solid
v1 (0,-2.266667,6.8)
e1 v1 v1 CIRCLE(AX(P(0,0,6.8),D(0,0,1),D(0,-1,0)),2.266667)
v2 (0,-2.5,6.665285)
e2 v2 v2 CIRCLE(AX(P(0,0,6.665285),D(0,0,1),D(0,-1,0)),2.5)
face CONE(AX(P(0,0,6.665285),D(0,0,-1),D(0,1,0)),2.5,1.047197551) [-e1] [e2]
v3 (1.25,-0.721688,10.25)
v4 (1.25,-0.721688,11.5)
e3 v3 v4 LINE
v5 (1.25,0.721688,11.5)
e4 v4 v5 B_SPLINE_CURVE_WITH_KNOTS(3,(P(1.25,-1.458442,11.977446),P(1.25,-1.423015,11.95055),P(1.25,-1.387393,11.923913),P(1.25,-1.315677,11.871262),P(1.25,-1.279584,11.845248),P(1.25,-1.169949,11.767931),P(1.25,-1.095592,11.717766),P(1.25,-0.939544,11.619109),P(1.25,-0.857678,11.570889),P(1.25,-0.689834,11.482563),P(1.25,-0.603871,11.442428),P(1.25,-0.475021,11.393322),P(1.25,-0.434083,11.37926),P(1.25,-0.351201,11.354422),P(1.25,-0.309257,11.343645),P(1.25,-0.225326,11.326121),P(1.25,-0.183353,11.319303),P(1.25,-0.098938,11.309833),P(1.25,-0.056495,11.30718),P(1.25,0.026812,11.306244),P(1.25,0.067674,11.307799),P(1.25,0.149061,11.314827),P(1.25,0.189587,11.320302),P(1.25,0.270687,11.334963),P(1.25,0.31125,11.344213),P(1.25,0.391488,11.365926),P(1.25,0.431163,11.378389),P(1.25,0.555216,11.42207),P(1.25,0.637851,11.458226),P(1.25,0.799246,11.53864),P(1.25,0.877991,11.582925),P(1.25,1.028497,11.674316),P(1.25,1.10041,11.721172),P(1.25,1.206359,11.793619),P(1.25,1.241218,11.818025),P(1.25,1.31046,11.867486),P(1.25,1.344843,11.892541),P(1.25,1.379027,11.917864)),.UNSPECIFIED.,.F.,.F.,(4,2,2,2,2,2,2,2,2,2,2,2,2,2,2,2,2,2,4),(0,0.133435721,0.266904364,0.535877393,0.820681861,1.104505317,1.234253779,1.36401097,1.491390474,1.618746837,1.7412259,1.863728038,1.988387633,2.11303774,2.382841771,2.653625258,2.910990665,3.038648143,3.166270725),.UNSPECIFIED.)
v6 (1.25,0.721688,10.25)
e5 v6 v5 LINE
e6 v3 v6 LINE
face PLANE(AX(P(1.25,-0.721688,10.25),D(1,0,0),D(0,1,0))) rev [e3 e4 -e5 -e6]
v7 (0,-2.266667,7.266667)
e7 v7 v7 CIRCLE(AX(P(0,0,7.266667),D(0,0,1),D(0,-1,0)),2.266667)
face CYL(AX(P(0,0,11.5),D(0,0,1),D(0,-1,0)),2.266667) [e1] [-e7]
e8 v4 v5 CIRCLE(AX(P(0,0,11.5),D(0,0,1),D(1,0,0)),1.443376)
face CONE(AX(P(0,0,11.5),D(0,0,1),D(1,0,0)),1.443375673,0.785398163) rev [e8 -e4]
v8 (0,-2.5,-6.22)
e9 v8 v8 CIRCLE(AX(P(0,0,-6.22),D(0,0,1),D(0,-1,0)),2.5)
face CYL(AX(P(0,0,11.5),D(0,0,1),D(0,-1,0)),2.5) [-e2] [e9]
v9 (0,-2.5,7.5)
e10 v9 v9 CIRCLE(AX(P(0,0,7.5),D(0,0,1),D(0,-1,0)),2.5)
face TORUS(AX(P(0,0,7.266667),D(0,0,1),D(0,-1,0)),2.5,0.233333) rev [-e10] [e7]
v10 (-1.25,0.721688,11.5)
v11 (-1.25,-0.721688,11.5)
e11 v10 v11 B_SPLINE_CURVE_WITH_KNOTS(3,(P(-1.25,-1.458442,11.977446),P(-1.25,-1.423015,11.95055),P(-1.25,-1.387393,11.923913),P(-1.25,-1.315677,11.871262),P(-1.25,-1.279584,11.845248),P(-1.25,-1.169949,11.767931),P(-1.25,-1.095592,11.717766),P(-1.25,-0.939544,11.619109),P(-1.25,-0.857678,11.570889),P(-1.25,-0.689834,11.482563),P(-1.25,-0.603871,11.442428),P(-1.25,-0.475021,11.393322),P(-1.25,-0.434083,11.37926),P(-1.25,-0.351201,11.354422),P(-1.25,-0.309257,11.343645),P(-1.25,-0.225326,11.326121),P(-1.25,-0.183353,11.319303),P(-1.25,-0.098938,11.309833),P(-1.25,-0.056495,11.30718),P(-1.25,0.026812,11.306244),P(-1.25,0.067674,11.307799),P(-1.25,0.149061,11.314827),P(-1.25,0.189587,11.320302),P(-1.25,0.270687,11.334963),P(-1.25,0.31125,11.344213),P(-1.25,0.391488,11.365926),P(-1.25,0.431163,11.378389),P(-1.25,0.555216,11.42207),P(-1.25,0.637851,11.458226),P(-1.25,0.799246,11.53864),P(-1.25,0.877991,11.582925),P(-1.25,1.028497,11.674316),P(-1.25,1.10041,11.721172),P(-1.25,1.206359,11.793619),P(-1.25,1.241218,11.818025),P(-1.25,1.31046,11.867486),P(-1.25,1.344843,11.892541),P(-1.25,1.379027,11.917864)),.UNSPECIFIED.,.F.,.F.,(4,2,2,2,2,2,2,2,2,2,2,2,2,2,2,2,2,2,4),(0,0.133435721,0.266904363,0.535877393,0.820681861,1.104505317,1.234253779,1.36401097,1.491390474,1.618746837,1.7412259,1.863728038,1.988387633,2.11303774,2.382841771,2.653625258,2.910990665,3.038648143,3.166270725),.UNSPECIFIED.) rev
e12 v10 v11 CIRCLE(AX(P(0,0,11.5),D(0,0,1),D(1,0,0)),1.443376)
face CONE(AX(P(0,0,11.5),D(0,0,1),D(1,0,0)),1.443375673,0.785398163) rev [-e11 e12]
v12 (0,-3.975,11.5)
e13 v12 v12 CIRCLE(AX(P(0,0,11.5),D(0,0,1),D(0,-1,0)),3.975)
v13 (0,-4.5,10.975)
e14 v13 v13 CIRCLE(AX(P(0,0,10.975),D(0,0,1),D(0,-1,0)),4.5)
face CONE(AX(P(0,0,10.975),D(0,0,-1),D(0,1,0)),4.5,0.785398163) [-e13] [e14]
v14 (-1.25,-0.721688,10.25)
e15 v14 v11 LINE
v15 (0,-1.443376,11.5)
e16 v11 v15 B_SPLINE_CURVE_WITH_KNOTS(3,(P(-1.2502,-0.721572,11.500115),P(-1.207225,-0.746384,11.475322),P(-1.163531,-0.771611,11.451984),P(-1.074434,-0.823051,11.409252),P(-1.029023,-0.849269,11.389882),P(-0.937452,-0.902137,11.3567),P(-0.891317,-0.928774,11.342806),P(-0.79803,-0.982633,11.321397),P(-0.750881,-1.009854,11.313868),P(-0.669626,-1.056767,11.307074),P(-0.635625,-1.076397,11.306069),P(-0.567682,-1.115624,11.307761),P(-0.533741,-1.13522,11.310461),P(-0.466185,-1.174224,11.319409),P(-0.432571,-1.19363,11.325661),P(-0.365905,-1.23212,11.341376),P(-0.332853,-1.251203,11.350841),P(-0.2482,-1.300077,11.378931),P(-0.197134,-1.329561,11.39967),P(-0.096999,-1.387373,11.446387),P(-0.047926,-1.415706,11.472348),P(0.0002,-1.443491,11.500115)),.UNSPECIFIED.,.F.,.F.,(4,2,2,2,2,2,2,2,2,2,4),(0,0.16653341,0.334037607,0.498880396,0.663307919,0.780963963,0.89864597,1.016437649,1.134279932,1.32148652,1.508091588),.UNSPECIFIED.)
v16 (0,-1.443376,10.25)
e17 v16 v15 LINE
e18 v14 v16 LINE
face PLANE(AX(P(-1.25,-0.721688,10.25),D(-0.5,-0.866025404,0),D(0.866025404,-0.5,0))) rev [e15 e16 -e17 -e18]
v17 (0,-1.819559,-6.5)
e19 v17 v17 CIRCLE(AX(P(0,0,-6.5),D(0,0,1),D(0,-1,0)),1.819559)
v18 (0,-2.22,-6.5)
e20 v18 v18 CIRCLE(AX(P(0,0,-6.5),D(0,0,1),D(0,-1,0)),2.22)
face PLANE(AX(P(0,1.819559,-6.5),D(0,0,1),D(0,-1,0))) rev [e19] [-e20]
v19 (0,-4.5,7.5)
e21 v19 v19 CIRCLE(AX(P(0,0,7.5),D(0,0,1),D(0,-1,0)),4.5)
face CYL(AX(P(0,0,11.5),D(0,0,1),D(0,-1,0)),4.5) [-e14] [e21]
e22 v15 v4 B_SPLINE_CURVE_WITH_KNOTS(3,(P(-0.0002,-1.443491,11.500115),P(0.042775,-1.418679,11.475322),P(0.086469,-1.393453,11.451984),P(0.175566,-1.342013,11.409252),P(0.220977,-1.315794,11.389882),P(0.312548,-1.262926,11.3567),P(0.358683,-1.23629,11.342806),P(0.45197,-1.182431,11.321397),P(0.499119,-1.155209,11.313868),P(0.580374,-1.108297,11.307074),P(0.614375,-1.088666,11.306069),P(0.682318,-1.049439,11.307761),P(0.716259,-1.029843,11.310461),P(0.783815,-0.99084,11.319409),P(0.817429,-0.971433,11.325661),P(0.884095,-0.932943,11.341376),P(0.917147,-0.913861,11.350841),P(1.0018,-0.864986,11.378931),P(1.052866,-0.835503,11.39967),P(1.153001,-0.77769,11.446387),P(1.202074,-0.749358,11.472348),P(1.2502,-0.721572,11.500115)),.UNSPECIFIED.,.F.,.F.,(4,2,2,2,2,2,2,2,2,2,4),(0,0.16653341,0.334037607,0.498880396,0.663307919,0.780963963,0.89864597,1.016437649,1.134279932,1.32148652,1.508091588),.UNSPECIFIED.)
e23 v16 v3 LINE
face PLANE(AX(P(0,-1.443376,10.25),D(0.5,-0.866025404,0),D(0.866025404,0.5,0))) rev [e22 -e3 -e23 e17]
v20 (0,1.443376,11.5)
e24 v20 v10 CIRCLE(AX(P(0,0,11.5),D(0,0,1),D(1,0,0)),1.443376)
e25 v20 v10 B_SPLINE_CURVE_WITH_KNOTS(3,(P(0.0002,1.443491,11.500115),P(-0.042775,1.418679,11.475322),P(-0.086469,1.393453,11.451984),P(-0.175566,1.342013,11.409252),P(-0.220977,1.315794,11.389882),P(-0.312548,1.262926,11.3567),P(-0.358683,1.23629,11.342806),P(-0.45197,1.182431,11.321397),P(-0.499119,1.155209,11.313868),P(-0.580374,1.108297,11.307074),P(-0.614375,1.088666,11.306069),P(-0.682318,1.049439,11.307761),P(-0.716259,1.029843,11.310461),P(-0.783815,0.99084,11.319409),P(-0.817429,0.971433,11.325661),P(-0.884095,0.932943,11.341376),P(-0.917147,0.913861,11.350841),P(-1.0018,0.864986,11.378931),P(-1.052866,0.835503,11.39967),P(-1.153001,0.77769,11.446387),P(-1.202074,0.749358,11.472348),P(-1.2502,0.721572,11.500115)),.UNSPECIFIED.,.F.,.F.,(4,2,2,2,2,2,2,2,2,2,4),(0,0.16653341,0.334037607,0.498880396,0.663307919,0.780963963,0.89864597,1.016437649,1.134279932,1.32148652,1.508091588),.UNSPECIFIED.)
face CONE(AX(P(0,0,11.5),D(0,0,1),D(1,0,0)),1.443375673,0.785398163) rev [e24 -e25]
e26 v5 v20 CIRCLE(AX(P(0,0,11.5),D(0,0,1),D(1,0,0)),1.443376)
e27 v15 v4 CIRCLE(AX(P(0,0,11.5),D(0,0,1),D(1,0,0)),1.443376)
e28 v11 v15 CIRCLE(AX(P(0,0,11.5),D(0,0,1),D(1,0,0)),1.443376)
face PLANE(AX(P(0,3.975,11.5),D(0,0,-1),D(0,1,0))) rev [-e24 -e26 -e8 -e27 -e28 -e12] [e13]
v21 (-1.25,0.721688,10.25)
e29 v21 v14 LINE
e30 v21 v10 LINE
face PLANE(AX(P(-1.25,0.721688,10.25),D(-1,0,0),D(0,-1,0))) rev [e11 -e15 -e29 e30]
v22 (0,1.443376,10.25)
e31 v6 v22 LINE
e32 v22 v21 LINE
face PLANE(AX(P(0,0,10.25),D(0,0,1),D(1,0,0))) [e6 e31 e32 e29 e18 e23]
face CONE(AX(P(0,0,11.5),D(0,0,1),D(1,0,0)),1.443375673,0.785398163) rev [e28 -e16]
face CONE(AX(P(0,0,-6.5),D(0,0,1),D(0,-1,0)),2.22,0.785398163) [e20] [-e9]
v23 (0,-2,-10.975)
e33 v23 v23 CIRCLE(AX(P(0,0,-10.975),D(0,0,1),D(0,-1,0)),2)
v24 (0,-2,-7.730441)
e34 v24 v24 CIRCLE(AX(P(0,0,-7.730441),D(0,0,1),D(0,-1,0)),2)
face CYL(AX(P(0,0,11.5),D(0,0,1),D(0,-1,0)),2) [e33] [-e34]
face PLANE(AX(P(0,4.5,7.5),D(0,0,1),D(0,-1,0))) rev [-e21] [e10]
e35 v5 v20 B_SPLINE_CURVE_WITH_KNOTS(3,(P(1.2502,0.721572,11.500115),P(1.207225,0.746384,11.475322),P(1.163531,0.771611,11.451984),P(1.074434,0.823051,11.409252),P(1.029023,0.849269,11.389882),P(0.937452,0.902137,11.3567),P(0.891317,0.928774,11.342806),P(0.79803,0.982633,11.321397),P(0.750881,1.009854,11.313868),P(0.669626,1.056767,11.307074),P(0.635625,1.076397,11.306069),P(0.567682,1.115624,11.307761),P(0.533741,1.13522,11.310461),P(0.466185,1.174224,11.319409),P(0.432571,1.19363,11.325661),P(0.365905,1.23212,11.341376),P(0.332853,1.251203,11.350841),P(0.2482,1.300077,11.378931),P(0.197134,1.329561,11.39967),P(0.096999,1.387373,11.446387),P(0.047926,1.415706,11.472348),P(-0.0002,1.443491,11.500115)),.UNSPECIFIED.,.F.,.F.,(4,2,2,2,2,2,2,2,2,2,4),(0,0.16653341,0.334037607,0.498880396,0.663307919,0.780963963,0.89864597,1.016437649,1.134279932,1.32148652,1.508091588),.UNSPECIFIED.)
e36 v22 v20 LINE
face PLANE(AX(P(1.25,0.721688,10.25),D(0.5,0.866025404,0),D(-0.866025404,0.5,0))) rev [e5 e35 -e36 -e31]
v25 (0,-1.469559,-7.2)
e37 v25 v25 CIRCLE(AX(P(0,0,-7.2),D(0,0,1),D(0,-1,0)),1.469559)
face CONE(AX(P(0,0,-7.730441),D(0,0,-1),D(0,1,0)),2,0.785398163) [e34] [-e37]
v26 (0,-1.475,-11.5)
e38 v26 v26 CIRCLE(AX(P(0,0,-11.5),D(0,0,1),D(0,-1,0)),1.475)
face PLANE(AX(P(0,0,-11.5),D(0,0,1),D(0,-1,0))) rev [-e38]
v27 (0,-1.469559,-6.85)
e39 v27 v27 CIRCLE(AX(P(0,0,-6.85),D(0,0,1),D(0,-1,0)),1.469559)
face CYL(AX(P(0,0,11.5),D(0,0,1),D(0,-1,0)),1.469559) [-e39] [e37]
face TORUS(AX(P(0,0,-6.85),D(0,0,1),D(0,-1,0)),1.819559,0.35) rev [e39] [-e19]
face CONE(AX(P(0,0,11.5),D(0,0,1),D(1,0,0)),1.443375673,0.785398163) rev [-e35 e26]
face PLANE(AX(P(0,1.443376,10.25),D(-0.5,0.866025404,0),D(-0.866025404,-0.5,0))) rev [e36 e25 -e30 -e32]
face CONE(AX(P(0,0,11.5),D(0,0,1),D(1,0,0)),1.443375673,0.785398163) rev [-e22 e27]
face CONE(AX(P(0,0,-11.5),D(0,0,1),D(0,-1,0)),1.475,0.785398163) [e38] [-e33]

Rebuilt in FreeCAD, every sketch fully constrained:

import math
import FreeCAD as App
import Part
import Sketcher
Q = App.Units.Quantity


def faces_at(feature, points):
    """Names of the faces that lie closest to the given points."""
    faces = feature.Shape.Faces
    near = lambda p: min(range(len(faces)), key=lambda i: faces[i].distToShape(Part.Vertex(*p))[0])
    return sorted({f"Face{near(p) + 1}" for p in points})


def add_polygon(sketch, points):
    """Adds a closed chain of lines whose ends are joined by coincident constraints."""
    first, n = sketch.GeometryCount, len(points)
    for a, b in zip(points, points[1:] + points[:1]):
        sketch.addGeometry(Part.LineSegment(App.Vector(*a, 0), App.Vector(*b, 0)), False)
    for i in range(n):
        sketch.addConstraint(Sketcher.Constraint("Coincident", first + i, 2, first + (i + 1) % n, 1))

doc = App.newDocument("Part")
body = doc.addObject("PartDesign::Body", "Body")

sketch1 = doc.addObject("Sketcher::SketchObject", "Sketch")
body.addObject(sketch1)
sketch1.AttachmentSupport = (doc.YZ_Plane, [""])
sketch1.MapMode = "FlatFace"
sketch1.addGeometry([
    Part.LineSegment(App.Vector(0, -11.5, 0), App.Vector(1.48, -11.5, 0)),
    Part.LineSegment(App.Vector(1.48, -11.5, 0), App.Vector(2, -10.97, 0)),
    Part.LineSegment(App.Vector(2, -10.97, 0), App.Vector(2, -7.73, 0)),
    Part.LineSegment(App.Vector(2, -7.73, 0), App.Vector(1.47, -7.2, 0)),
    Part.LineSegment(App.Vector(1.47, -7.2, 0), App.Vector(1.47, -6.85, 0)),
    Part.ArcOfCircle(Part.Circle(App.Vector(1.82, -6.85, 0), App.Vector(0, 0, 1), 0.35), math.radians(90), math.radians(180)),
    Part.LineSegment(App.Vector(1.82, -6.5, 0), App.Vector(2.22, -6.5, 0)),
    Part.LineSegment(App.Vector(2.22, -6.5, 0), App.Vector(2.5, -6.22, 0)),
    Part.LineSegment(App.Vector(2.5, -6.22, 0), App.Vector(2.5, 6.67, 0)),
    Part.LineSegment(App.Vector(2.5, 6.67, 0), App.Vector(2.27, 6.8, 0)),
    Part.LineSegment(App.Vector(2.27, 6.8, 0), App.Vector(2.27, 7.27, 0)),
    Part.ArcOfCircle(Part.Circle(App.Vector(2.5, 7.27, 0), App.Vector(0, 0, 1), 0.23), math.radians(90), math.radians(180)),
    Part.LineSegment(App.Vector(2.5, 7.5, 0), App.Vector(4.5, 7.5, 0)),
    Part.LineSegment(App.Vector(4.5, 7.5, 0), App.Vector(4.5, 10.97, 0)),
    Part.LineSegment(App.Vector(4.5, 10.97, 0), App.Vector(3.98, 11.5, 0)),
    Part.LineSegment(App.Vector(3.98, 11.5, 0), App.Vector(0, 11.5, 0)),
    Part.LineSegment(App.Vector(0, 11.5, 0), App.Vector(0, -11.5, 0)),
], False)
sketch1.addConstraint([
    Sketcher.Constraint("Coincident", 0, 2, 1, 1),
    Sketcher.Constraint("Coincident", 1, 2, 2, 1),
    Sketcher.Constraint("Coincident", 2, 2, 3, 1),
    Sketcher.Constraint("Coincident", 3, 2, 4, 1),
    Sketcher.Constraint("Tangent", 4, 2, 5, 2),
    Sketcher.Constraint("Tangent", 5, 1, 6, 1),
    Sketcher.Constraint("Coincident", 6, 2, 7, 1),
    Sketcher.Constraint("Coincident", 7, 2, 8, 1),
    Sketcher.Constraint("Coincident", 8, 2, 9, 1),
    Sketcher.Constraint("Coincident", 9, 2, 10, 1),
    Sketcher.Constraint("Tangent", 10, 2, 11, 2),
    Sketcher.Constraint("Tangent", 11, 1, 12, 1),
    Sketcher.Constraint("Coincident", 12, 2, 13, 1),
    Sketcher.Constraint("Coincident", 13, 2, 14, 1),
    Sketcher.Constraint("Coincident", 14, 2, 15, 1),
    Sketcher.Constraint("Coincident", 15, 2, 16, 1),
    Sketcher.Constraint("Coincident", 16, 2, 0, 1),
    Sketcher.Constraint("Horizontal", 0),
    Sketcher.Constraint("Vertical", 2),
    Sketcher.Constraint("Vertical", 4),
    Sketcher.Constraint("Horizontal", 6),
    Sketcher.Constraint("Vertical", 8),
    Sketcher.Constraint("Vertical", 10),
    Sketcher.Constraint("Horizontal", 12),
    Sketcher.Constraint("Vertical", 13),
    Sketcher.Constraint("Horizontal", 15),
    Sketcher.Constraint("Vertical", 16),
    Sketcher.Constraint("Symmetric", 15, 2, 16, 2, -1, 1),
    Sketcher.Constraint("Perpendicular", 1, 3),
    Sketcher.Constraint("Perpendicular", 3, 7),
    Sketcher.Constraint("Perpendicular", 7, 14),
    Sketcher.Constraint("Vertical", 11, 3, 7, 2),
    Sketcher.Constraint("Equal", 1, 14),
    Sketcher.Constraint("DistanceX", 12, 1, 12, 2, 2.0),
    Sketcher.Constraint("DistanceY", 16, 2, 16, 1, 23.0),
    Sketcher.Constraint("Angle", 1, Q("45 deg")),
    Sketcher.Constraint("Angle", 9, Q("150 deg")),
    Sketcher.Constraint("Radius", 5, 0.35),
    Sketcher.Constraint("DistanceX", -1, 1, 1, 2, 2.0),
    Sketcher.Constraint("DistanceY", 12, 2, 14, 2, 4.0),
    Sketcher.Constraint("DistanceY", 4, 1, 4, 2, 0.35),
    Sketcher.Constraint("DistanceX", -1, 1, 11, 3, 2.5),
    Sketcher.Constraint("DistanceY", 3, 2, -1, 1, 7.2),
    Sketcher.Constraint("DistanceY", -1, 1, 9, 2, 6.8),
    Sketcher.Constraint("DistanceX", 0, 1, 0, 2, 1.475),
    Sketcher.Constraint("DistanceX", -1, 1, 6, 2, 2.22),
    Sketcher.Constraint("Radius", 11, 0.233333),
    Sketcher.Constraint("DistanceX", 6, 1, 6, 2, 0.400441),
])
revolution = doc.addObject("PartDesign::Revolution", "Revolution")
body.addObject(revolution)
revolution.Profile = sketch1
revolution.ReferenceAxis = (sketch1, ["V_Axis"])
revolution.Angle = 360

sketch2 = doc.addObject("Sketcher::SketchObject", "Sketch001")
body.addObject(sketch2)
sketch2.AttachmentSupport = (doc.XY_Plane, [""])
sketch2.MapMode = "FlatFace"
sketch2.AttachmentOffset = App.Placement(App.Vector(0, 0, 11.5), App.Rotation())
add_polygon(sketch2, [(0, 1.4), (-1.2, 0.7), (-1.2, -0.7), (0, -1.4), (1.2, -0.7), (1.2, 0.7)])
sketch2.addConstraint([
    Sketcher.Constraint("Vertical", 1),
    Sketcher.Constraint("Vertical", 4),
    Sketcher.Constraint("Symmetric", 0, 2, 3, 2, -1, 1),
    Sketcher.Constraint("Symmetric", 2, 2, 5, 2, -1, 1),
    Sketcher.Constraint("PointOnObject", 2, 2, -2),
    Sketcher.Constraint("Parallel", 2, 5),
    Sketcher.Constraint("Horizontal", 1, 2, 3, 2),
    Sketcher.Constraint("Angle", 0, Q("-150 deg")),
    Sketcher.Constraint("DistanceX", 1, 2, 3, 2, 2.5),
    Sketcher.Constraint("DistanceY", 1, 2, 1, 1, 1.443376),
])
pocket1 = doc.addObject("PartDesign::Pocket", "Pocket")
body.addObject(pocket1)
pocket1.Profile = sketch2
pocket1.Length = 1.25
body2 = doc.addObject("PartDesign::Body", "Body001")

sketch3 = doc.addObject("Sketcher::SketchObject", "Sketch002")
body2.addObject(sketch3)
sketch3.AttachmentSupport = (doc.getObject("XY_Plane001"), [""])
sketch3.MapMode = "FlatFace"
sketch3.AttachmentOffset = App.Placement(App.Vector(0, 0, 11.5), App.Rotation())
sketch3.addGeometry(Part.Circle(App.Vector(0, 0, 0), App.Vector(0, 0, 1), 1.4), False)
sketch3.addConstraint([
    Sketcher.Constraint("Coincident", 0, 3, -1, 1),
    Sketcher.Constraint("Diameter", 0, 2.886751),
])
pad1 = doc.addObject("PartDesign::Pad", "Pad")
body2.addObject(pad1)
pad1.Profile = sketch3
pad1.Length = 1.25
pad1.Reversed = True
doc.recompute()

datumplane = doc.addObject("PartDesign::Plane", "DatumPlane")
body2.addObject(datumplane)
datumplane.AttachmentSupport = (doc.getObject("XY_Plane001"), [""])
datumplane.MapMode = "FlatFace"
datumplane.AttachmentOffset = App.Placement(App.Vector(0, 0, 11.5), App.Rotation())
draft = doc.addObject("PartDesign::Draft", "Draft")
body2.addObject(draft)
draft.Base = (pad1, faces_at(pad1, [(-1.443, 0, 10.875)]))
draft.NeutralPlane = (datumplane, [""])
draft.Angle = 45
draft.Reversed = True
doc.recompute()

boolean = doc.addObject("PartDesign::Boolean", "Boolean")
body.addObject(boolean)
boolean.Type = "Cut"
boolean.addObjects([body2])

doc.recompute()
